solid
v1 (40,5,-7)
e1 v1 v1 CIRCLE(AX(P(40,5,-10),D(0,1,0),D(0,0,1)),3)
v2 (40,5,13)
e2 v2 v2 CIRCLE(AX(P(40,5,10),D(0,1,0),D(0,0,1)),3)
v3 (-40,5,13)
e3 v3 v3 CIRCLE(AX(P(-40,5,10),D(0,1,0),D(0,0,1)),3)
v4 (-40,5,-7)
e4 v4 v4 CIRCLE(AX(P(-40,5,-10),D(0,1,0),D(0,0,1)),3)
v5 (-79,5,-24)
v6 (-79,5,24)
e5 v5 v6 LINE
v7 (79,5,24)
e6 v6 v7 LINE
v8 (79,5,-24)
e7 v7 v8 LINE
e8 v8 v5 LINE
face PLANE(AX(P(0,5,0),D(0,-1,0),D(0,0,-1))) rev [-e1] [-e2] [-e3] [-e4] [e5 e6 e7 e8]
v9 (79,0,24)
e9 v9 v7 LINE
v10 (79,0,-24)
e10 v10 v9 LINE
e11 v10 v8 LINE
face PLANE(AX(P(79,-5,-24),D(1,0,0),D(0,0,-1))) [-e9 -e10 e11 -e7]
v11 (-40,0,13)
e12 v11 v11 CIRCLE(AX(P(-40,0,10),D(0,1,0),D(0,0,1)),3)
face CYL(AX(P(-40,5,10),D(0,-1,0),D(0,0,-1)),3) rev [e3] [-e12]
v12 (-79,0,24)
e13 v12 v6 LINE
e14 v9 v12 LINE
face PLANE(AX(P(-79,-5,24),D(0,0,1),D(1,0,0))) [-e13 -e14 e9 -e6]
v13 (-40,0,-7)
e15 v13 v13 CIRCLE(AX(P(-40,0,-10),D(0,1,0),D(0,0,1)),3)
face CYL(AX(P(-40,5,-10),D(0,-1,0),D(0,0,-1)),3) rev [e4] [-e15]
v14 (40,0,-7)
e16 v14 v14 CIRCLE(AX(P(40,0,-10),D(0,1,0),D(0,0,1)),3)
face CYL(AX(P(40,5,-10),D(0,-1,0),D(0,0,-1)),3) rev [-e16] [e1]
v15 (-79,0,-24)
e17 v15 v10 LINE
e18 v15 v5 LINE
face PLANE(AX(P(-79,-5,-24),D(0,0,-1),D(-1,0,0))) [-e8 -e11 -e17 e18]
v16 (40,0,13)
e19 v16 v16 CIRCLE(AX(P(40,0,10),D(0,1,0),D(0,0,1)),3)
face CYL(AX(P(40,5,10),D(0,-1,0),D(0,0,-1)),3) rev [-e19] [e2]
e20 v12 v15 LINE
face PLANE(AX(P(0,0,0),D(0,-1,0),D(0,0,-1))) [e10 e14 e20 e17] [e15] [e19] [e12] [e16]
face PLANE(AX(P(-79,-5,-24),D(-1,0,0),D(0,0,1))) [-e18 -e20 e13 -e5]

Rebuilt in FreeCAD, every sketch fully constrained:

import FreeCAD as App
import Part
import Sketcher
Q = App.Units.Quantity

doc = App.newDocument("Part")
body = doc.addObject("PartDesign::Body", "Body")

sketch1 = body.newObject("Sketcher::SketchObject", "Sketch")
sketch1.AttachmentSupport = (doc.getObject("XZ_Plane"), [""])
sketch1.MapMode = "FlatFace"
sketch1.addGeometry([
    Part.LineSegment(App.Vector(-80, -25, 0), App.Vector(-80, 25, 0)),
    Part.LineSegment(App.Vector(-80, 25, 0), App.Vector(80, 25, 0)),
    Part.LineSegment(App.Vector(80, 25, 0), App.Vector(80, -25, 0)),
    Part.LineSegment(App.Vector(80, -25, 0), App.Vector(-80, -25, 0)),
    Part.Circle(App.Vector(-40, 10, 0), App.Vector(0, 0, 1), 3),
    Part.Circle(App.Vector(40, 10, 0), App.Vector(0, 0, 1), 3),
    Part.Circle(App.Vector(-40, -10, 0), App.Vector(0, 0, 1), 3),
    Part.Circle(App.Vector(40, -10, 0), App.Vector(0, 0, 1), 3),
], False)
sketch1.addConstraint([
    Sketcher.Constraint("Coincident", 0, 2, 1, 1),
    Sketcher.Constraint("Coincident", 1, 2, 2, 1),
    Sketcher.Constraint("Coincident", 2, 2, 3, 1),
    Sketcher.Constraint("Coincident", 3, 2, 0, 1),
    Sketcher.Constraint("Vertical", 0),
    Sketcher.Constraint("Horizontal", 1),
    Sketcher.Constraint("Vertical", 2),
    Sketcher.Constraint("Horizontal", 3),
    Sketcher.Constraint("Equal", 4, 5),
    Sketcher.Constraint("Equal", 5, 6),
    Sketcher.Constraint("Equal", 6, 7),
    Sketcher.Constraint("Symmetric", 5, 3, 6, 3, -1, 1),
    Sketcher.Constraint("Symmetric", 4, 3, 7, 3, -1, 1),
    Sketcher.Constraint("Symmetric", 0, 2, 2, 2, -1, 1),
    Sketcher.Constraint("Symmetric", 4, 3, 5, 3, -2),
    Sketcher.Constraint("Diameter", 4, Q("6 mm")),
    Sketcher.Constraint("DistanceX", 1, 1, 1, 2, Q("160 mm")),
    Sketcher.Constraint("DistanceY", 0, 1, 0, 2, Q("50 mm")),
    Sketcher.Constraint("DistanceX", 4, 3, -1, 1, Q("40 mm")),
    Sketcher.Constraint("DistanceY", -1, 1, 4, 3, Q("10 mm")),
])
pad1 = body.newObject("PartDesign::Pad", "Pad")
pad1.Profile = sketch1
pad1.Length = 5
pad1.Reversed = True

sketch2 = body.newObject("Sketcher::SketchObject", "Sketch001")
sketch2.AttachmentSupport = (doc.getObject("XZ_Plane"), [""])
sketch2.MapMode = "FlatFace"
sketch2.AttachmentOffset = App.Placement(App.Vector(0, 0, -5), App.Rotation())
sketch2.addGeometry([
    Part.LineSegment(App.Vector(-80, -25, 0), App.Vector(-80, 25, 0)),
    Part.LineSegment(App.Vector(-80, 25, 0), App.Vector(80, 25, 0)),
    Part.LineSegment(App.Vector(80, 25, 0), App.Vector(80, -25, 0)),
    Part.LineSegment(App.Vector(80, -25, 0), App.Vector(-80, -25, 0)),
    Part.LineSegment(App.Vector(79, 24, 0), App.Vector(-79, 24, 0)),
    Part.LineSegment(App.Vector(-79, 24, 0), App.Vector(-79, -24, 0)),
    Part.LineSegment(App.Vector(-79, -24, 0), App.Vector(79, -24, 0)),
    Part.LineSegment(App.Vector(79, -24, 0), App.Vector(79, 24, 0)),
], False)
sketch2.addConstraint([
    Sketcher.Constraint("Coincident", 0, 2, 1, 1),
    Sketcher.Constraint("Coincident", 1, 2, 2, 1),
    Sketcher.Constraint("Coincident", 2, 2, 3, 1),
    Sketcher.Constraint("Coincident", 3, 2, 0, 1),
    Sketcher.Constraint("Coincident", 4, 2, 5, 1),
    Sketcher.Constraint("Coincident", 5, 2, 6, 1),
    Sketcher.Constraint("Coincident", 6, 2, 7, 1),
    Sketcher.Constraint("Coincident", 7, 2, 4, 1),
    Sketcher.Constraint("Vertical", 0),
    Sketcher.Constraint("Horizontal", 1),
    Sketcher.Constraint("Vertical", 2),
    Sketcher.Constraint("Horizontal", 3),
    Sketcher.Constraint("Horizontal", 4),
    Sketcher.Constraint("Vertical", 5),
    Sketcher.Constraint("Horizontal", 6),
    Sketcher.Constraint("Vertical", 7),
    Sketcher.Constraint("Symmetric", 0, 2, 2, 2, -1, 1),
    Sketcher.Constraint("Symmetric", 4, 2, 6, 2, -1, 1),
    Sketcher.Constraint("DistanceX", 1, 1, 1, 2, Q("160 mm")),
    Sketcher.Constraint("DistanceX", 4, 2, 4, 1, Q("158 mm")),
    Sketcher.Constraint("DistanceY", 0, 1, 0, 2, Q("50 mm")),
    Sketcher.Constraint("DistanceY", 5, 2, 5, 1, Q("48 mm")),
])
pocket1 = body.newObject("PartDesign::Pocket", "Pocket")
pocket1.Profile = sketch2
pocket1.Length = 10
pocket1.Reversed = True

doc.recompute()
